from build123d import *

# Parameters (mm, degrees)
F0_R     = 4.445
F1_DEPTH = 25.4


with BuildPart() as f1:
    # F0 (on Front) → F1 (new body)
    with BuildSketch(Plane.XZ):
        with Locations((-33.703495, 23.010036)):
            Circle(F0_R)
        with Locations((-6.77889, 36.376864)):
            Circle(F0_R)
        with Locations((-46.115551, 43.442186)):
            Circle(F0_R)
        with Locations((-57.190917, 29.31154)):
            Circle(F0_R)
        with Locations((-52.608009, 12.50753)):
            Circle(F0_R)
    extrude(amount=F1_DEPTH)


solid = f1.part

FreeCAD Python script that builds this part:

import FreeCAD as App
import Part
import Sketcher

V = App.Vector
Q = App.Units.Quantity

doc = App.newDocument("Part")
body = doc.addObject("PartDesign::Body", "Body")
body.AllowCompound = True

sketch1 = doc.addObject("Sketcher::SketchObject", "Sketch")
body.addObject(sketch1)
sketch1.AttachmentSupport = (doc.XZ_Plane, [""])
sketch1.MapMode = "FlatFace"
sketch1.addGeometry(Part.Circle(V(-33.703495, 23.010036, 0), V(0, 0, 1), 4.445), False)
sketch1.addGeometry(Part.Circle(V(-6.77889, 36.376864, 0), V(0, 0, 1), 4.445), False)
sketch1.addGeometry(Part.Circle(V(-46.115551, 43.442186, 0), V(0, 0, 1), 4.445), False)
sketch1.addGeometry(Part.Circle(V(-57.190917, 29.31154, 0), V(0, 0, 1), 4.445), False)
sketch1.addGeometry(Part.Circle(V(-52.608009, 12.50753, 0), V(0, 0, 1), 4.445), False)
sketch1.addConstraint(Sketcher.Constraint("Equal", 0, 1))
sketch1.addConstraint(Sketcher.Constraint("Equal", 1, 2))
sketch1.addConstraint(Sketcher.Constraint("Equal", 2, 3))
sketch1.addConstraint(Sketcher.Constraint("Equal", 3, 4))
sketch1.addConstraint(Sketcher.Constraint("Diameter", 0, Q("0.35 in")))
sketch1.addConstraint(Sketcher.Constraint("DistanceY", 4, 3, 2, 3, Q("1.2178998 in")))
sketch1.addConstraint(Sketcher.Constraint("DistanceX", 1, 3, -1, 1, Q("6.77889 mm")))
sketch1.addConstraint(Sketcher.Constraint("DistanceX", 2, 3, -1, 1, Q("46.115551 mm")))
sketch1.addConstraint(Sketcher.Constraint("DistanceY", -1, 1, 3, 3, Q("29.31154 mm")))
sketch1.addConstraint(Sketcher.Constraint("DistanceX", 4, 3, -1, 1, Q("52.608009 mm")))
sketch1.addConstraint(Sketcher.Constraint("DistanceY", -1, 1, 4, 3, Q("12.50753 mm")))
sketch1.addConstraint(Sketcher.Constraint("DistanceY", 0, 3, 2, 3, Q("20.43215 mm")))
sketch1.addConstraint(Sketcher.Constraint("DistanceX", 0, 3, -1, 1, Q("33.703495 mm")))
sketch1.addConstraint(Sketcher.Constraint("DistanceY", -1, 1, 1, 3, Q("36.376864 mm")))
sketch1.addConstraint(Sketcher.Constraint("DistanceX", 3, 3, -1, 1, Q("57.190917 mm")))
pad1 = doc.addObject("PartDesign::Pad", "Pad")
body.addObject(pad1)
pad1.Profile = sketch1
pad1.Length = Q("1 in")

doc.recompute()
